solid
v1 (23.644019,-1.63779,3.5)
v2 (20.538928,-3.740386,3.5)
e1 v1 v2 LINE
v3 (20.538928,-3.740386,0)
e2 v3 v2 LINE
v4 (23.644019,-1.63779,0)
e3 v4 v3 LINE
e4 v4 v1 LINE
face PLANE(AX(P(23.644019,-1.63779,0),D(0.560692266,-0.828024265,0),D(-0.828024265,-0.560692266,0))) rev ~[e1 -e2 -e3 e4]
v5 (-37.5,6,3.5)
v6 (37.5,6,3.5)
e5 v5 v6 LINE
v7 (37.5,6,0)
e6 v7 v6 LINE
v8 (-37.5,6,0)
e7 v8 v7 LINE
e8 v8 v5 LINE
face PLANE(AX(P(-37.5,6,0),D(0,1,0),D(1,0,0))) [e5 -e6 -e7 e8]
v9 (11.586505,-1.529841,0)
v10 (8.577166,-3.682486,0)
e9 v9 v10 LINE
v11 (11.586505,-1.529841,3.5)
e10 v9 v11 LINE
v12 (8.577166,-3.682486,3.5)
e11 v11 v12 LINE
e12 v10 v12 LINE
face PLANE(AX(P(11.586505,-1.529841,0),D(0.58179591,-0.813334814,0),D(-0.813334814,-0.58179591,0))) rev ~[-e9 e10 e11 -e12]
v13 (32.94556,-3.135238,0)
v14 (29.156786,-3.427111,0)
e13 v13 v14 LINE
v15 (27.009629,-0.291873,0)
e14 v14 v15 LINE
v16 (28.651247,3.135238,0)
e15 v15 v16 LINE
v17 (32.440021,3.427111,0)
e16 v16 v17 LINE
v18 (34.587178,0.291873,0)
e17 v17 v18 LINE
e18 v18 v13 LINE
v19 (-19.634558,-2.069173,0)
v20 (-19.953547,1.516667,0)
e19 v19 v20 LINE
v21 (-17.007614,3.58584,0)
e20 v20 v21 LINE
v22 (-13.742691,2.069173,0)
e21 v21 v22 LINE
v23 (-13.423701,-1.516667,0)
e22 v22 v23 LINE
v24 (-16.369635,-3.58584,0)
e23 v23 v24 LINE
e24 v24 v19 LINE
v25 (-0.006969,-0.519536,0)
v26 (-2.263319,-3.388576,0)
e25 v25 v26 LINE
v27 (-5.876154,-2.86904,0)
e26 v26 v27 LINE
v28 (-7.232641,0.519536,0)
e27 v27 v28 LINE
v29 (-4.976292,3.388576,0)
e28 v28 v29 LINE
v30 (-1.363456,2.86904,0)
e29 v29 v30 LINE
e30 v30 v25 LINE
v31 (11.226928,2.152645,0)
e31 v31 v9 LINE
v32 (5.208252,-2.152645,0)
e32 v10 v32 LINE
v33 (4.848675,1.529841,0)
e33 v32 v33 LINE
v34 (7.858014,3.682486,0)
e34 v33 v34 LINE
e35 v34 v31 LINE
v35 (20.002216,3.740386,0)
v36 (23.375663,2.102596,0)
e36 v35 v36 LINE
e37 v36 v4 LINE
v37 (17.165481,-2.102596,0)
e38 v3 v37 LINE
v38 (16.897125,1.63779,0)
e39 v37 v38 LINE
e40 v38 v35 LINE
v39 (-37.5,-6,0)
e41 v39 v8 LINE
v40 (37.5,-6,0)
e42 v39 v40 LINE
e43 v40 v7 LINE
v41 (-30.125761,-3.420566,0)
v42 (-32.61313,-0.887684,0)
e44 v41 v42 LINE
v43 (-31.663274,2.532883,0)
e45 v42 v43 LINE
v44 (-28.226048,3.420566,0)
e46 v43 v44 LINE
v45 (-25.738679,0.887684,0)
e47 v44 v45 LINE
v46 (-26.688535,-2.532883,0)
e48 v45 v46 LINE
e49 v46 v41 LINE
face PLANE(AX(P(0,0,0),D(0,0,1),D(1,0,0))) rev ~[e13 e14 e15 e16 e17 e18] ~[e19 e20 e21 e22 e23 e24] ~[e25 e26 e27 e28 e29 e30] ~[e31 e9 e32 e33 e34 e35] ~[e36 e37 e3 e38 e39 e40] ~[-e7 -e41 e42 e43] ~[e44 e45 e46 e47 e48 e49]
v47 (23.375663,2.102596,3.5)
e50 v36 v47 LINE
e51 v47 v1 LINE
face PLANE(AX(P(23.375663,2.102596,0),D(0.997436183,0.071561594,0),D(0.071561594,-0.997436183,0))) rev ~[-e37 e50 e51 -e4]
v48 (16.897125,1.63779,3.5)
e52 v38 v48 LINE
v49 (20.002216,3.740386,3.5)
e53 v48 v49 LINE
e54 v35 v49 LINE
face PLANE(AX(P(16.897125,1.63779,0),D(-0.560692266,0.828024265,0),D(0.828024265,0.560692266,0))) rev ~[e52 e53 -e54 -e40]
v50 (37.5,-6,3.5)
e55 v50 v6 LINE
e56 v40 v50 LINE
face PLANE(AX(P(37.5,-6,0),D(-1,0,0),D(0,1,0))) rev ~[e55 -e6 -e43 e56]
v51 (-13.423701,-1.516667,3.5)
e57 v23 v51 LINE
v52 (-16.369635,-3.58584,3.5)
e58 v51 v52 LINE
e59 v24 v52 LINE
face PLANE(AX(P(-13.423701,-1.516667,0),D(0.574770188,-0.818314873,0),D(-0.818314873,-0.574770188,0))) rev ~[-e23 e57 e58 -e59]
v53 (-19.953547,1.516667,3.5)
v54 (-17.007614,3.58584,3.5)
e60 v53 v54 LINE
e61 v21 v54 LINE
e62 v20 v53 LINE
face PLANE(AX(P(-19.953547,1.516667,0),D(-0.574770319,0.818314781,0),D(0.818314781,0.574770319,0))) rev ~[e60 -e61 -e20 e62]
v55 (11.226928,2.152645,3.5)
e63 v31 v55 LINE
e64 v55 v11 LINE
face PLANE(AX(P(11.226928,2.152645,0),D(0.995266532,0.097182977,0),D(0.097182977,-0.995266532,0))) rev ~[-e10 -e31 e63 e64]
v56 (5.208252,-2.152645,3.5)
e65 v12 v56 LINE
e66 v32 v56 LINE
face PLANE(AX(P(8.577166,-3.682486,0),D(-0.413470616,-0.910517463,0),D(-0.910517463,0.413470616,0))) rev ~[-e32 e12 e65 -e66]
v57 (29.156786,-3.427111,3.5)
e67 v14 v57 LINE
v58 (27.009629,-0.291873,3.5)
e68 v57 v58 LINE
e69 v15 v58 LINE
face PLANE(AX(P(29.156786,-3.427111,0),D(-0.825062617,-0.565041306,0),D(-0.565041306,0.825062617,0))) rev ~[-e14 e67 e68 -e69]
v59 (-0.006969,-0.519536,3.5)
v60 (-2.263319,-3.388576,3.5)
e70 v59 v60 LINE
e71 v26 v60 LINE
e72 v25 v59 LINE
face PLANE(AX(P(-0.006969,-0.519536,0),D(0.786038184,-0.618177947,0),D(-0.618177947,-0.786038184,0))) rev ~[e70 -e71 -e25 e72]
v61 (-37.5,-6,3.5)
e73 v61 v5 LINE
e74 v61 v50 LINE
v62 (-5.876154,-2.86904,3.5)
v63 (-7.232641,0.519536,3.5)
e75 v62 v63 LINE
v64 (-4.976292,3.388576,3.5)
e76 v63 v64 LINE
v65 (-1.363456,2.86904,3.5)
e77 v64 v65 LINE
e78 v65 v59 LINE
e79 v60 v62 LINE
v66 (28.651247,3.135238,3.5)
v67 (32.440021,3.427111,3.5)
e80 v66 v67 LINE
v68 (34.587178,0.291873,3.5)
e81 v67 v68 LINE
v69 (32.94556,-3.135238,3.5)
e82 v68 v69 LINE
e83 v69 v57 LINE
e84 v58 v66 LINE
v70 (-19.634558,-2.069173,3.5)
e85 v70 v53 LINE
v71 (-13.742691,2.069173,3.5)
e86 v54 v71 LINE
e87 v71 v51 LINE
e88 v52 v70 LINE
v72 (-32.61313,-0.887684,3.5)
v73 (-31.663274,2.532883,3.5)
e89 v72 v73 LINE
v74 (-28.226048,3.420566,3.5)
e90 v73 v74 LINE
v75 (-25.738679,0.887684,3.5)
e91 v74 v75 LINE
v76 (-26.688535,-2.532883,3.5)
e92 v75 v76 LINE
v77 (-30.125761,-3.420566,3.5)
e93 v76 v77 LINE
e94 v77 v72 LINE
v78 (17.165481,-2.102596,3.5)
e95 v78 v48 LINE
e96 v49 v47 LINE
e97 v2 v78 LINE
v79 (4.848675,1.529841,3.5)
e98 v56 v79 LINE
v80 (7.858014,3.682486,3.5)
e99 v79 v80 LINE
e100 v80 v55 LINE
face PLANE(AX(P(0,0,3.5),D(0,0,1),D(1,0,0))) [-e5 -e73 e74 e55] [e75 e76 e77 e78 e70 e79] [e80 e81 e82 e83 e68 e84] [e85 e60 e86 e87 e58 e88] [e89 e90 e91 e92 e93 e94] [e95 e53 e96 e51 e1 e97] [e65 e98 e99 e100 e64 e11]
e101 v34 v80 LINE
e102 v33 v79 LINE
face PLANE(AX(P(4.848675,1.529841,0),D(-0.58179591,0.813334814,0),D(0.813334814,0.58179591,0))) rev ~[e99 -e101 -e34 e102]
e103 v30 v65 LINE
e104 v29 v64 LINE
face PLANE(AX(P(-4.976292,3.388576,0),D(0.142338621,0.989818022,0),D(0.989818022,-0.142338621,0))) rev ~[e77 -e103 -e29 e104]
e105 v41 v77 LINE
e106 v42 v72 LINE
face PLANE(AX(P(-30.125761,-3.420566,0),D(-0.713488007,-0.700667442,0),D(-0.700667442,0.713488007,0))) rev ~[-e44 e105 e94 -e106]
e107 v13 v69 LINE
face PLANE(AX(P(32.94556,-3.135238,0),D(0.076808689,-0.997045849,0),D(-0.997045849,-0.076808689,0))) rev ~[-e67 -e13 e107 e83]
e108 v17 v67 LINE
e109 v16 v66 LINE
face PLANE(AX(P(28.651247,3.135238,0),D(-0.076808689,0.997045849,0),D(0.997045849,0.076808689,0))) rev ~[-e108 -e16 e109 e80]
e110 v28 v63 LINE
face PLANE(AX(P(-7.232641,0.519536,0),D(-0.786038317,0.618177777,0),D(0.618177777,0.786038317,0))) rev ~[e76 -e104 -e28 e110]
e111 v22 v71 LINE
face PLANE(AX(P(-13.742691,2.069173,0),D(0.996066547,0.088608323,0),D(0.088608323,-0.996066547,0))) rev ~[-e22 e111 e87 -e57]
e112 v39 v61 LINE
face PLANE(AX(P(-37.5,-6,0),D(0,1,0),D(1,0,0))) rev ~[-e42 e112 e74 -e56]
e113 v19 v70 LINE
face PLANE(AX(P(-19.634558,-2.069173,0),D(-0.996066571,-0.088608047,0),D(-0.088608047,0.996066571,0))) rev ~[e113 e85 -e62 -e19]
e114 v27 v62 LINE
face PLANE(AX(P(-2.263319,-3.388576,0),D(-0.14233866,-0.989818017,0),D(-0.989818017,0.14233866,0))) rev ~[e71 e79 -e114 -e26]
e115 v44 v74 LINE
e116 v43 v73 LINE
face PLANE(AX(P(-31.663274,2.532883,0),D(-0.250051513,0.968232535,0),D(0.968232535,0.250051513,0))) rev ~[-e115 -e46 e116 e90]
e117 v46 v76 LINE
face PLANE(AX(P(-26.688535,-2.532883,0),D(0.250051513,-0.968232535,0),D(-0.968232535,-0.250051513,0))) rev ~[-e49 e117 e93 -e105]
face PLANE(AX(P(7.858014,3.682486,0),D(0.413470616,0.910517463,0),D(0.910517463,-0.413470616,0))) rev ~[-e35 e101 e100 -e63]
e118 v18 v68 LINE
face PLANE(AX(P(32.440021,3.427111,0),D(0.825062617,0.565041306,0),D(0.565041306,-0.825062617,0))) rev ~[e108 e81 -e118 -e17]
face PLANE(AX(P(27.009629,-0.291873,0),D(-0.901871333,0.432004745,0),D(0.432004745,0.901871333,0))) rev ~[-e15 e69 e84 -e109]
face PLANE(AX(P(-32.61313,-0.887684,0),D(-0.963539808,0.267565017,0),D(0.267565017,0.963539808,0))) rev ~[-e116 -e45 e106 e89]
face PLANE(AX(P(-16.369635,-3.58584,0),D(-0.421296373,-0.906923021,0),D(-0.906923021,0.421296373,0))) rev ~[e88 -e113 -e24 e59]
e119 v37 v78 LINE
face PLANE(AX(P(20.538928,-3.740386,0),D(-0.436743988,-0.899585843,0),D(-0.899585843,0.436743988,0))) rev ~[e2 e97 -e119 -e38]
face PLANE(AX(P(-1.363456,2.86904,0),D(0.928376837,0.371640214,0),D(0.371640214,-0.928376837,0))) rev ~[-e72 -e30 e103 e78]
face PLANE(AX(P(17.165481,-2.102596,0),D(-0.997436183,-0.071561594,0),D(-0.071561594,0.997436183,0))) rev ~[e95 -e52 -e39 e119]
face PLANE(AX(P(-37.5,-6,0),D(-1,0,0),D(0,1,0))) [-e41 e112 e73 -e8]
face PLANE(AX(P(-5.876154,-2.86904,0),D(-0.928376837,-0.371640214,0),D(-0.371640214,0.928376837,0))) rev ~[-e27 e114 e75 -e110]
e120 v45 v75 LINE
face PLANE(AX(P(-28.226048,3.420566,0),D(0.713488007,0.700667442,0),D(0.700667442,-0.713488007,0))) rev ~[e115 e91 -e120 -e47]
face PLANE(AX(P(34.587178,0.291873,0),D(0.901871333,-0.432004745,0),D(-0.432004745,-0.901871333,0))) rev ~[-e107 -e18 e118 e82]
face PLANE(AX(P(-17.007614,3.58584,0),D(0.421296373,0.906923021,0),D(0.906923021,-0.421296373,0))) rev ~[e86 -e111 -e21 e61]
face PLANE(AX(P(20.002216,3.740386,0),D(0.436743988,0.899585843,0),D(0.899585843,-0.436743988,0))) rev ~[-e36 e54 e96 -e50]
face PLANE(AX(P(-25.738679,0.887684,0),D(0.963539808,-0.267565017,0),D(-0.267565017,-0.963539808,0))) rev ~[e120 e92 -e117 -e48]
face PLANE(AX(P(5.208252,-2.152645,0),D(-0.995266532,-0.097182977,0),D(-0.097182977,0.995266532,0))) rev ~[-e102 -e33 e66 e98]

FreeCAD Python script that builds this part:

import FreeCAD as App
import Part
import Sketcher

doc = App.newDocument("Part")
body = doc.addObject("PartDesign::Body", "Body")

# Sketch on XY plane
sketch1 = body.newObject("Sketcher::SketchObject", "Sketch")
sketch1.AttachmentSupport = (doc.getObject("XY_Plane"), [""])
sketch1.MapMode = "FlatFace"
sketch1.addGeometry(Part.LineSegment(App.Vector(-37.5, 6, 0), App.Vector(-37.5, -6, 0)), False)
sketch1.addGeometry(Part.LineSegment(App.Vector(-37.5, -6, 0), App.Vector(37.5, -6, 0)), False)
sketch1.addGeometry(Part.LineSegment(App.Vector(37.5, -6, 0), App.Vector(37.5, 6, 0)), False)
sketch1.addGeometry(Part.LineSegment(App.Vector(37.5, 6, 0), App.Vector(-37.5, 6, 0)), False)
sketch1.addGeometry(Part.LineSegment(App.Vector(-32.6, -0.9, 0), App.Vector(-31.7, 2.5, 0)), False)
sketch1.addGeometry(Part.LineSegment(App.Vector(-31.7, 2.5, 0), App.Vector(-28.2, 3.4, 0)), False)
sketch1.addGeometry(Part.LineSegment(App.Vector(-28.2, 3.4, 0), App.Vector(-25.7, 0.9, 0)), False)
sketch1.addGeometry(Part.LineSegment(App.Vector(-25.7, 0.9, 0), App.Vector(-26.7, -2.5, 0)), False)
sketch1.addGeometry(Part.LineSegment(App.Vector(-26.7, -2.5, 0), App.Vector(-30.1, -3.4, 0)), False)
sketch1.addGeometry(Part.LineSegment(App.Vector(-30.1, -3.4, 0), App.Vector(-32.6, -0.9, 0)), False)
sketch1.addGeometry(Part.LineSegment(App.Vector(-19.6, -2.1, 0), App.Vector(-20, 1.5, 0)), False)
sketch1.addGeometry(Part.LineSegment(App.Vector(-20, 1.5, 0), App.Vector(-17, 3.6, 0)), False)
sketch1.addGeometry(Part.LineSegment(App.Vector(-17, 3.6, 0), App.Vector(-13.7, 2.1, 0)), False)
sketch1.addGeometry(Part.LineSegment(App.Vector(-13.7, 2.1, 0), App.Vector(-13.4, -1.5, 0)), False)
sketch1.addGeometry(Part.LineSegment(App.Vector(-13.4, -1.5, 0), App.Vector(-16.4, -3.6, 0)), False)
sketch1.addGeometry(Part.LineSegment(App.Vector(-16.4, -3.6, 0), App.Vector(-19.6, -2.1, 0)), False)
sketch1.addGeometry(Part.LineSegment(App.Vector(-5.9, -2.9, 0), App.Vector(-7.2, 0.5, 0)), False)
sketch1.addGeometry(Part.LineSegment(App.Vector(-7.2, 0.5, 0), App.Vector(-5, 3.4, 0)), False)
sketch1.addGeometry(Part.LineSegment(App.Vector(-5, 3.4, 0), App.Vector(-1.4, 2.9, 0)), False)
sketch1.addGeometry(Part.LineSegment(App.Vector(-1.4, 2.9, 0), App.Vector(0, -0.5, 0)), False)
sketch1.addGeometry(Part.LineSegment(App.Vector(0, -0.5, 0), App.Vector(-2.3, -3.4, 0)), False)
sketch1.addGeometry(Part.LineSegment(App.Vector(-2.3, -3.4, 0), App.Vector(-5.9, -2.9, 0)), False)
sketch1.addGeometry(Part.LineSegment(App.Vector(5.2, -2.2, 0), App.Vector(4.8, 1.5, 0)), False)
sketch1.addGeometry(Part.LineSegment(App.Vector(4.8, 1.5, 0), App.Vector(7.9, 3.7, 0)), False)
sketch1.addGeometry(Part.LineSegment(App.Vector(7.9, 3.7, 0), App.Vector(11.2, 2.2, 0)), False)
sketch1.addGeometry(Part.LineSegment(App.Vector(11.2, 2.2, 0), App.Vector(11.6, -1.5, 0)), False)
sketch1.addGeometry(Part.LineSegment(App.Vector(11.6, -1.5, 0), App.Vector(8.6, -3.7, 0)), False)
sketch1.addGeometry(Part.LineSegment(App.Vector(8.6, -3.7, 0), App.Vector(5.2, -2.2, 0)), False)
sketch1.addGeometry(Part.LineSegment(App.Vector(17.2, -2.1, 0), App.Vector(16.9, 1.6, 0)), False)
sketch1.addGeometry(Part.LineSegment(App.Vector(16.9, 1.6, 0), App.Vector(20, 3.7, 0)), False)
sketch1.addGeometry(Part.LineSegment(App.Vector(20, 3.7, 0), App.Vector(23.4, 2.1, 0)), False)
sketch1.addGeometry(Part.LineSegment(App.Vector(23.4, 2.1, 0), App.Vector(23.6, -1.6, 0)), False)
sketch1.addGeometry(Part.LineSegment(App.Vector(23.6, -1.6, 0), App.Vector(20.5, -3.7, 0)), False)
sketch1.addGeometry(Part.LineSegment(App.Vector(20.5, -3.7, 0), App.Vector(17.2, -2.1, 0)), False)
sketch1.addGeometry(Part.LineSegment(App.Vector(27, -0.3, 0), App.Vector(28.7, 3.1, 0)), False)
sketch1.addGeometry(Part.LineSegment(App.Vector(28.7, 3.1, 0), App.Vector(32.4, 3.4, 0)), False)
sketch1.addGeometry(Part.LineSegment(App.Vector(32.4, 3.4, 0), App.Vector(34.6, 0.3, 0)), False)
sketch1.addGeometry(Part.LineSegment(App.Vector(34.6, 0.3, 0), App.Vector(32.9, -3.1, 0)), False)
sketch1.addGeometry(Part.LineSegment(App.Vector(32.9, -3.1, 0), App.Vector(29.2, -3.4, 0)), False)
sketch1.addGeometry(Part.LineSegment(App.Vector(29.2, -3.4, 0), App.Vector(27, -0.3, 0)), False)
sketch1.addConstraint(Sketcher.Constraint("Coincident", 0, 2, 1, 1))
sketch1.addConstraint(Sketcher.Constraint("Coincident", 1, 2, 2, 1))
sketch1.addConstraint(Sketcher.Constraint("Coincident", 2, 2, 3, 1))
sketch1.addConstraint(Sketcher.Constraint("Coincident", 3, 2, 0, 1))
sketch1.addConstraint(Sketcher.Constraint("Coincident", 4, 2, 5, 1))
sketch1.addConstraint(Sketcher.Constraint("Coincident", 5, 2, 6, 1))
sketch1.addConstraint(Sketcher.Constraint("Coincident", 6, 2, 7, 1))
sketch1.addConstraint(Sketcher.Constraint("Coincident", 7, 2, 8, 1))
sketch1.addConstraint(Sketcher.Constraint("Coincident", 8, 2, 9, 1))
sketch1.addConstraint(Sketcher.Constraint("Coincident", 9, 2, 4, 1))
sketch1.addConstraint(Sketcher.Constraint("Coincident", 10, 2, 11, 1))
sketch1.addConstraint(Sketcher.Constraint("Coincident", 11, 2, 12, 1))
sketch1.addConstraint(Sketcher.Constraint("Coincident", 12, 2, 13, 1))
sketch1.addConstraint(Sketcher.Constraint("Coincident", 13, 2, 14, 1))
sketch1.addConstraint(Sketcher.Constraint("Coincident", 14, 2, 15, 1))
sketch1.addConstraint(Sketcher.Constraint("Coincident", 15, 2, 10, 1))
sketch1.addConstraint(Sketcher.Constraint("Coincident", 16, 2, 17, 1))
sketch1.addConstraint(Sketcher.Constraint("Coincident", 17, 2, 18, 1))
sketch1.addConstraint(Sketcher.Constraint("Coincident", 18, 2, 19, 1))
sketch1.addConstraint(Sketcher.Constraint("Coincident", 19, 2, 20, 1))
sketch1.addConstraint(Sketcher.Constraint("Coincident", 20, 2, 21, 1))
sketch1.addConstraint(Sketcher.Constraint("Coincident", 21, 2, 16, 1))
sketch1.addConstraint(Sketcher.Constraint("Coincident", 22, 2, 23, 1))
sketch1.addConstraint(Sketcher.Constraint("Coincident", 23, 2, 24, 1))
sketch1.addConstraint(Sketcher.Constraint("Coincident", 24, 2, 25, 1))
sketch1.addConstraint(Sketcher.Constraint("Coincident", 25, 2, 26, 1))
sketch1.addConstraint(Sketcher.Constraint("Coincident", 26, 2, 27, 1))
sketch1.addConstraint(Sketcher.Constraint("Coincident", 27, 2, 22, 1))
sketch1.addConstraint(Sketcher.Constraint("Coincident", 28, 2, 29, 1))
sketch1.addConstraint(Sketcher.Constraint("Coincident", 29, 2, 30, 1))
sketch1.addConstraint(Sketcher.Constraint("Coincident", 30, 2, 31, 1))
sketch1.addConstraint(Sketcher.Constraint("Coincident", 31, 2, 32, 1))
sketch1.addConstraint(Sketcher.Constraint("Coincident", 32, 2, 33, 1))
sketch1.addConstraint(Sketcher.Constraint("Coincident", 33, 2, 28, 1))
sketch1.addConstraint(Sketcher.Constraint("Coincident", 34, 2, 35, 1))
sketch1.addConstraint(Sketcher.Constraint("Coincident", 35, 2, 36, 1))
sketch1.addConstraint(Sketcher.Constraint("Coincident", 36, 2, 37, 1))
sketch1.addConstraint(Sketcher.Constraint("Coincident", 37, 2, 38, 1))
sketch1.addConstraint(Sketcher.Constraint("Coincident", 38, 2, 39, 1))
sketch1.addConstraint(Sketcher.Constraint("Coincident", 39, 2, 34, 1))
sketch1.addConstraint(Sketcher.Constraint("Vertical", 0))
sketch1.addConstraint(Sketcher.Constraint("Horizontal", 1))
sketch1.addConstraint(Sketcher.Constraint("Vertical", 2))
sketch1.addConstraint(Sketcher.Constraint("Horizontal", 3))
sketch1.addConstraint(Sketcher.Constraint("Symmetric", 0, 2, 2, 2, -1, 1))
sketch1.addConstraint(Sketcher.Constraint("Parallel", 4, 7))
sketch1.addConstraint(Sketcher.Constraint("Parallel", 5, 8))
sketch1.addConstraint(Sketcher.Constraint("Parallel", 6, 9))
sketch1.addConstraint(Sketcher.Constraint("Parallel", 10, 13))
sketch1.addConstraint(Sketcher.Constraint("Parallel", 11, 14))
sketch1.addConstraint(Sketcher.Constraint("Parallel", 12, 15))
sketch1.addConstraint(Sketcher.Constraint("Parallel", 16, 19))
sketch1.addConstraint(Sketcher.Constraint("Parallel", 17, 20))
sketch1.addConstraint(Sketcher.Constraint("Parallel", 18, 21))
sketch1.addConstraint(Sketcher.Constraint("Parallel", 22, 25))
sketch1.addConstraint(Sketcher.Constraint("Parallel", 23, 26))
sketch1.addConstraint(Sketcher.Constraint("Parallel", 24, 27))
sketch1.addConstraint(Sketcher.Constraint("Parallel", 28, 31))
sketch1.addConstraint(Sketcher.Constraint("Parallel", 29, 32))
sketch1.addConstraint(Sketcher.Constraint("Parallel", 30, 33))
sketch1.addConstraint(Sketcher.Constraint("Parallel", 34, 37))
sketch1.addConstraint(Sketcher.Constraint("Parallel", 35, 38))
sketch1.addConstraint(Sketcher.Constraint("Parallel", 36, 39))
sketch1.addConstraint(Sketcher.Constraint("Equal", 4, 5))
sketch1.addConstraint(Sketcher.Constraint("Equal", 5, 6))
sketch1.addConstraint(Sketcher.Constraint("Equal", 6, 7))
sketch1.addConstraint(Sketcher.Constraint("Equal", 10, 11))
sketch1.addConstraint(Sketcher.Constraint("Equal", 11, 12))
sketch1.addConstraint(Sketcher.Constraint("Equal", 12, 13))
sketch1.addConstraint(Sketcher.Constraint("Equal", 16, 17))
sketch1.addConstraint(Sketcher.Constraint("Equal", 17, 18))
sketch1.addConstraint(Sketcher.Constraint("Equal", 18, 19))
sketch1.addConstraint(Sketcher.Constraint("Equal", 22, 23))
sketch1.addConstraint(Sketcher.Constraint("Equal", 23, 24))
sketch1.addConstraint(Sketcher.Constraint("Equal", 24, 25))
sketch1.addConstraint(Sketcher.Constraint("Equal", 28, 29))
sketch1.addConstraint(Sketcher.Constraint("Equal", 29, 30))
sketch1.addConstraint(Sketcher.Constraint("Equal", 30, 31))
sketch1.addConstraint(Sketcher.Constraint("Equal", 34, 35))
sketch1.addConstraint(Sketcher.Constraint("Equal", 35, 36))
sketch1.addConstraint(Sketcher.Constraint("Equal", 36, 37))
sketch1.addConstraint(Sketcher.Constraint("DistanceX", 1, 1, 1, 2, 75.0))
sketch1.addConstraint(Sketcher.Constraint("DistanceY", 0, 2, 0, 1, 12.0))
sketch1.addConstraint(Sketcher.Constraint("Distance", 10, 3.6))
sketch1.addConstraint(Sketcher.Constraint("Distance", 22, 3.7))
sketch1.addConstraint(Sketcher.Constraint("Distance", 34, 3.8))
sketch1.addConstraint(Sketcher.Constraint("Distance", 4, 3.550001))
sketch1.addConstraint(Sketcher.Constraint("Distance", 16, 3.650001))
sketch1.addConstraint(Sketcher.Constraint("Distance", 28, 3.75))
sketch1.addConstraint(Sketcher.Constraint("DistanceX", 13, 2, -1, 1, 13.423701))
sketch1.addConstraint(Sketcher.Constraint("DistanceY", 6, 2, 4, 2, 1.645199))
sketch1.addConstraint(Sketcher.Constraint("DistanceX", 5, 2, 10, 2, 8.272501))
sketch1.addConstraint(Sketcher.Constraint("DistanceY", 10, 2, 5, 2, 1.903899))
sketch1.addConstraint(Sketcher.Constraint("DistanceX", 7, 2, 14, 2, 10.3189))
sketch1.addConstraint(Sketcher.Constraint("DistanceX", 12, 2, 17, 2, 8.766399))
sketch1.addConstraint(Sketcher.Constraint("DistanceY", 18, 2, 11, 2, 0.7168))
sketch1.addConstraint(Sketcher.Constraint("DistanceY", 22, 2, 18, 2, 1.339199))
sketch1.addConstraint(Sketcher.Constraint("DistanceY", 23, 2, 29, 2, 0.0579))
sketch1.addConstraint(Sketcher.Constraint("DistanceY", 31, 2, 35, 2, 5.064901))
sketch1.addConstraint(Sketcher.Constraint("DistanceX", 6, 2, -1, 1, 25.738679))
sketch1.addConstraint(Sketcher.Constraint("DistanceX", 8, 2, -1, 1, 30.125761))
sketch1.addConstraint(Sketcher.Constraint("DistanceX", 9, 2, -1, 1, 32.61313))
sketch1.addConstraint(Sketcher.Constraint("DistanceY", -1, 1, 11, 2, 3.58584))
sketch1.addConstraint(Sketcher.Constraint("DistanceX", 12, 2, -1, 1, 13.742691))
sketch1.addConstraint(Sketcher.Constraint("DistanceX", 16, 2, -1, 1, 7.232641))
sketch1.addConstraint(Sketcher.Constraint("DistanceX", 19, 2, -1, 1, 0.006969))
sketch1.addConstraint(Sketcher.Constraint("DistanceY", 21, 2, -1, 1, 2.86904))
sketch1.addConstraint(Sketcher.Constraint("DistanceY", 25, 2, -1, 1, 1.529841))
sketch1.addConstraint(Sketcher.Constraint("DistanceY", -1, 1, 28, 2, 1.63779))
sketch1.addConstraint(Sketcher.Constraint("DistanceX", -1, 1, 31, 2, 23.644019))
sketch1.addConstraint(Sketcher.Constraint("DistanceY", 31, 2, -1, 1, 1.63779))
sketch1.addConstraint(Sketcher.Constraint("DistanceX", -1, 1, 33, 2, 17.165481))
sketch1.addConstraint(Sketcher.Constraint("DistanceY", -1, 1, 34, 2, 3.135238))
sketch1.addConstraint(Sketcher.Constraint("DistanceX", -1, 1, 35, 2, 32.440021))
sketch1.addConstraint(Sketcher.Constraint("DistanceX", -1, 1, 36, 2, 34.587178))
sketch1.addConstraint(Sketcher.Constraint("DistanceX", -1, 1, 37, 2, 32.94556))
sketch1.addConstraint(Sketcher.Constraint("DistanceX", 18, 2, 22, 2, 6.212131))
sketch1.addConstraint(Sketcher.Constraint("DistanceX", 22, 2, 23, 2, 3.009339))
sketch1.addConstraint(Sketcher.Constraint("DistanceY", 24, 2, 23, 2, 1.529841))
pad1 = body.newObject("PartDesign::Pad", "Pad")
pad1.Profile = sketch1
pad1.Length = 3.5

doc.recompute()
